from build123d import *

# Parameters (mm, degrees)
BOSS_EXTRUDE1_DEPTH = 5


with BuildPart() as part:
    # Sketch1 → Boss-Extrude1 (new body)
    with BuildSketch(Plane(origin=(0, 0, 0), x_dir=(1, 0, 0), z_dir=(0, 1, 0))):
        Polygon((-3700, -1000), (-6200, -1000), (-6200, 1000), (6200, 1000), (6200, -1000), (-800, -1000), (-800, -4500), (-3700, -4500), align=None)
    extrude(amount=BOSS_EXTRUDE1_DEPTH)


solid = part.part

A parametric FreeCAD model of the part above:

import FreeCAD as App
import Part
import Sketcher
from FreeCAD import Vector
Q = App.Units.Quantity

doc = App.newDocument("Part")
params = doc.addObject("Spreadsheet::Sheet", "Params")
for row, (alias, value) in enumerate([
    ("sketch1_width", "2500 mm"),
    ("sketch1_width2", "2900 mm"),
    ("sketch1_width3", "7000 mm"),
    ("sketch1_height", "3500 mm"),
    ("sketch1_height2", "2000 mm"),
    ("pad1_length", "5 mm"),
], start=1):
    params.set(f"A{row}", alias)
    params.set(f"B{row}", "=" + value)
    params.setAlias(f"B{row}", alias)

body = doc.addObject("PartDesign::Body", "Body")

# Sketch on XZ plane
sketch1 = body.newObject("Sketcher::SketchObject", "Sketch")
sketch1.AttachmentSupport = (doc.getObject("XZ_Plane"), [""])
sketch1.MapMode = "FlatFace"
sketch1.addGeometry(Part.LineSegment(Vector(-6200, 1000, 0), Vector(-3700, 1000, 0)), False)
sketch1.addGeometry(Part.LineSegment(Vector(-3700, 1000, 0), Vector(-3700, 4500, 0)), False)
sketch1.addGeometry(Part.LineSegment(Vector(-3700, 4500, 0), Vector(-800, 4500, 0)), False)
sketch1.addGeometry(Part.LineSegment(Vector(-800, 4500, 0), Vector(-800, 1000, 0)), False)
sketch1.addGeometry(Part.LineSegment(Vector(-800, 1000, 0), Vector(6200, 1000, 0)), False)
sketch1.addGeometry(Part.LineSegment(Vector(6200, 1000, 0), Vector(6200, -1000, 0)), False)
sketch1.addGeometry(Part.LineSegment(Vector(6200, -1000, 0), Vector(-6200, -1000, 0)), False)
sketch1.addGeometry(Part.LineSegment(Vector(-6200, -1000, 0), Vector(-6200, 1000, 0)), False)
sketch1.addConstraint(Sketcher.Constraint("Coincident", 0, 2, 1, 1))
sketch1.addConstraint(Sketcher.Constraint("Coincident", 1, 2, 2, 1))
sketch1.addConstraint(Sketcher.Constraint("Coincident", 2, 2, 3, 1))
sketch1.addConstraint(Sketcher.Constraint("Coincident", 3, 2, 4, 1))
sketch1.addConstraint(Sketcher.Constraint("Coincident", 4, 2, 5, 1))
sketch1.addConstraint(Sketcher.Constraint("Coincident", 5, 2, 6, 1))
sketch1.addConstraint(Sketcher.Constraint("Coincident", 6, 2, 7, 1))
sketch1.addConstraint(Sketcher.Constraint("Coincident", 7, 2, 0, 1))
sketch1.addConstraint(Sketcher.Constraint("Horizontal", 0))
sketch1.addConstraint(Sketcher.Constraint("Vertical", 1))
sketch1.addConstraint(Sketcher.Constraint("Horizontal", 2))
sketch1.addConstraint(Sketcher.Constraint("Vertical", 3))
sketch1.addConstraint(Sketcher.Constraint("Horizontal", 4))
sketch1.addConstraint(Sketcher.Constraint("Vertical", 5))
sketch1.addConstraint(Sketcher.Constraint("Horizontal", 6))
sketch1.addConstraint(Sketcher.Constraint("Vertical", 7))
sketch1.addConstraint(Sketcher.Constraint("Symmetric", 4, 2, 6, 2, -1, 1))
sketch1.addConstraint(Sketcher.Constraint("Horizontal", 0, 2, 3, 2))
sketch1.addConstraint(Sketcher.Constraint("DistanceX", 0, 1, 0, 2, Q("2500 mm")))
sketch1.addConstraint(Sketcher.Constraint("DistanceX", 2, 1, 2, 2, Q("2900 mm")))
sketch1.addConstraint(Sketcher.Constraint("DistanceX", 4, 1, 4, 2, Q("7000 mm")))
sketch1.addConstraint(Sketcher.Constraint("DistanceY", 1, 1, 1, 2, Q("3500 mm")))
sketch1.addConstraint(Sketcher.Constraint("DistanceY", 5, 2, 5, 1, Q("2000 mm")))
sketch1.setExpression("Constraints[18]", "Params.sketch1_width")
sketch1.setExpression("Constraints[19]", "Params.sketch1_width2")
sketch1.setExpression("Constraints[20]", "Params.sketch1_width3")
sketch1.setExpression("Constraints[21]", "Params.sketch1_height")
sketch1.setExpression("Constraints[22]", "Params.sketch1_height2")
pad1 = body.newObject("PartDesign::Pad", "Pad")
pad1.Profile = sketch1
pad1.setExpression("Length", "Params.pad1_length")
pad1.Reversed = True

doc.recompute()
